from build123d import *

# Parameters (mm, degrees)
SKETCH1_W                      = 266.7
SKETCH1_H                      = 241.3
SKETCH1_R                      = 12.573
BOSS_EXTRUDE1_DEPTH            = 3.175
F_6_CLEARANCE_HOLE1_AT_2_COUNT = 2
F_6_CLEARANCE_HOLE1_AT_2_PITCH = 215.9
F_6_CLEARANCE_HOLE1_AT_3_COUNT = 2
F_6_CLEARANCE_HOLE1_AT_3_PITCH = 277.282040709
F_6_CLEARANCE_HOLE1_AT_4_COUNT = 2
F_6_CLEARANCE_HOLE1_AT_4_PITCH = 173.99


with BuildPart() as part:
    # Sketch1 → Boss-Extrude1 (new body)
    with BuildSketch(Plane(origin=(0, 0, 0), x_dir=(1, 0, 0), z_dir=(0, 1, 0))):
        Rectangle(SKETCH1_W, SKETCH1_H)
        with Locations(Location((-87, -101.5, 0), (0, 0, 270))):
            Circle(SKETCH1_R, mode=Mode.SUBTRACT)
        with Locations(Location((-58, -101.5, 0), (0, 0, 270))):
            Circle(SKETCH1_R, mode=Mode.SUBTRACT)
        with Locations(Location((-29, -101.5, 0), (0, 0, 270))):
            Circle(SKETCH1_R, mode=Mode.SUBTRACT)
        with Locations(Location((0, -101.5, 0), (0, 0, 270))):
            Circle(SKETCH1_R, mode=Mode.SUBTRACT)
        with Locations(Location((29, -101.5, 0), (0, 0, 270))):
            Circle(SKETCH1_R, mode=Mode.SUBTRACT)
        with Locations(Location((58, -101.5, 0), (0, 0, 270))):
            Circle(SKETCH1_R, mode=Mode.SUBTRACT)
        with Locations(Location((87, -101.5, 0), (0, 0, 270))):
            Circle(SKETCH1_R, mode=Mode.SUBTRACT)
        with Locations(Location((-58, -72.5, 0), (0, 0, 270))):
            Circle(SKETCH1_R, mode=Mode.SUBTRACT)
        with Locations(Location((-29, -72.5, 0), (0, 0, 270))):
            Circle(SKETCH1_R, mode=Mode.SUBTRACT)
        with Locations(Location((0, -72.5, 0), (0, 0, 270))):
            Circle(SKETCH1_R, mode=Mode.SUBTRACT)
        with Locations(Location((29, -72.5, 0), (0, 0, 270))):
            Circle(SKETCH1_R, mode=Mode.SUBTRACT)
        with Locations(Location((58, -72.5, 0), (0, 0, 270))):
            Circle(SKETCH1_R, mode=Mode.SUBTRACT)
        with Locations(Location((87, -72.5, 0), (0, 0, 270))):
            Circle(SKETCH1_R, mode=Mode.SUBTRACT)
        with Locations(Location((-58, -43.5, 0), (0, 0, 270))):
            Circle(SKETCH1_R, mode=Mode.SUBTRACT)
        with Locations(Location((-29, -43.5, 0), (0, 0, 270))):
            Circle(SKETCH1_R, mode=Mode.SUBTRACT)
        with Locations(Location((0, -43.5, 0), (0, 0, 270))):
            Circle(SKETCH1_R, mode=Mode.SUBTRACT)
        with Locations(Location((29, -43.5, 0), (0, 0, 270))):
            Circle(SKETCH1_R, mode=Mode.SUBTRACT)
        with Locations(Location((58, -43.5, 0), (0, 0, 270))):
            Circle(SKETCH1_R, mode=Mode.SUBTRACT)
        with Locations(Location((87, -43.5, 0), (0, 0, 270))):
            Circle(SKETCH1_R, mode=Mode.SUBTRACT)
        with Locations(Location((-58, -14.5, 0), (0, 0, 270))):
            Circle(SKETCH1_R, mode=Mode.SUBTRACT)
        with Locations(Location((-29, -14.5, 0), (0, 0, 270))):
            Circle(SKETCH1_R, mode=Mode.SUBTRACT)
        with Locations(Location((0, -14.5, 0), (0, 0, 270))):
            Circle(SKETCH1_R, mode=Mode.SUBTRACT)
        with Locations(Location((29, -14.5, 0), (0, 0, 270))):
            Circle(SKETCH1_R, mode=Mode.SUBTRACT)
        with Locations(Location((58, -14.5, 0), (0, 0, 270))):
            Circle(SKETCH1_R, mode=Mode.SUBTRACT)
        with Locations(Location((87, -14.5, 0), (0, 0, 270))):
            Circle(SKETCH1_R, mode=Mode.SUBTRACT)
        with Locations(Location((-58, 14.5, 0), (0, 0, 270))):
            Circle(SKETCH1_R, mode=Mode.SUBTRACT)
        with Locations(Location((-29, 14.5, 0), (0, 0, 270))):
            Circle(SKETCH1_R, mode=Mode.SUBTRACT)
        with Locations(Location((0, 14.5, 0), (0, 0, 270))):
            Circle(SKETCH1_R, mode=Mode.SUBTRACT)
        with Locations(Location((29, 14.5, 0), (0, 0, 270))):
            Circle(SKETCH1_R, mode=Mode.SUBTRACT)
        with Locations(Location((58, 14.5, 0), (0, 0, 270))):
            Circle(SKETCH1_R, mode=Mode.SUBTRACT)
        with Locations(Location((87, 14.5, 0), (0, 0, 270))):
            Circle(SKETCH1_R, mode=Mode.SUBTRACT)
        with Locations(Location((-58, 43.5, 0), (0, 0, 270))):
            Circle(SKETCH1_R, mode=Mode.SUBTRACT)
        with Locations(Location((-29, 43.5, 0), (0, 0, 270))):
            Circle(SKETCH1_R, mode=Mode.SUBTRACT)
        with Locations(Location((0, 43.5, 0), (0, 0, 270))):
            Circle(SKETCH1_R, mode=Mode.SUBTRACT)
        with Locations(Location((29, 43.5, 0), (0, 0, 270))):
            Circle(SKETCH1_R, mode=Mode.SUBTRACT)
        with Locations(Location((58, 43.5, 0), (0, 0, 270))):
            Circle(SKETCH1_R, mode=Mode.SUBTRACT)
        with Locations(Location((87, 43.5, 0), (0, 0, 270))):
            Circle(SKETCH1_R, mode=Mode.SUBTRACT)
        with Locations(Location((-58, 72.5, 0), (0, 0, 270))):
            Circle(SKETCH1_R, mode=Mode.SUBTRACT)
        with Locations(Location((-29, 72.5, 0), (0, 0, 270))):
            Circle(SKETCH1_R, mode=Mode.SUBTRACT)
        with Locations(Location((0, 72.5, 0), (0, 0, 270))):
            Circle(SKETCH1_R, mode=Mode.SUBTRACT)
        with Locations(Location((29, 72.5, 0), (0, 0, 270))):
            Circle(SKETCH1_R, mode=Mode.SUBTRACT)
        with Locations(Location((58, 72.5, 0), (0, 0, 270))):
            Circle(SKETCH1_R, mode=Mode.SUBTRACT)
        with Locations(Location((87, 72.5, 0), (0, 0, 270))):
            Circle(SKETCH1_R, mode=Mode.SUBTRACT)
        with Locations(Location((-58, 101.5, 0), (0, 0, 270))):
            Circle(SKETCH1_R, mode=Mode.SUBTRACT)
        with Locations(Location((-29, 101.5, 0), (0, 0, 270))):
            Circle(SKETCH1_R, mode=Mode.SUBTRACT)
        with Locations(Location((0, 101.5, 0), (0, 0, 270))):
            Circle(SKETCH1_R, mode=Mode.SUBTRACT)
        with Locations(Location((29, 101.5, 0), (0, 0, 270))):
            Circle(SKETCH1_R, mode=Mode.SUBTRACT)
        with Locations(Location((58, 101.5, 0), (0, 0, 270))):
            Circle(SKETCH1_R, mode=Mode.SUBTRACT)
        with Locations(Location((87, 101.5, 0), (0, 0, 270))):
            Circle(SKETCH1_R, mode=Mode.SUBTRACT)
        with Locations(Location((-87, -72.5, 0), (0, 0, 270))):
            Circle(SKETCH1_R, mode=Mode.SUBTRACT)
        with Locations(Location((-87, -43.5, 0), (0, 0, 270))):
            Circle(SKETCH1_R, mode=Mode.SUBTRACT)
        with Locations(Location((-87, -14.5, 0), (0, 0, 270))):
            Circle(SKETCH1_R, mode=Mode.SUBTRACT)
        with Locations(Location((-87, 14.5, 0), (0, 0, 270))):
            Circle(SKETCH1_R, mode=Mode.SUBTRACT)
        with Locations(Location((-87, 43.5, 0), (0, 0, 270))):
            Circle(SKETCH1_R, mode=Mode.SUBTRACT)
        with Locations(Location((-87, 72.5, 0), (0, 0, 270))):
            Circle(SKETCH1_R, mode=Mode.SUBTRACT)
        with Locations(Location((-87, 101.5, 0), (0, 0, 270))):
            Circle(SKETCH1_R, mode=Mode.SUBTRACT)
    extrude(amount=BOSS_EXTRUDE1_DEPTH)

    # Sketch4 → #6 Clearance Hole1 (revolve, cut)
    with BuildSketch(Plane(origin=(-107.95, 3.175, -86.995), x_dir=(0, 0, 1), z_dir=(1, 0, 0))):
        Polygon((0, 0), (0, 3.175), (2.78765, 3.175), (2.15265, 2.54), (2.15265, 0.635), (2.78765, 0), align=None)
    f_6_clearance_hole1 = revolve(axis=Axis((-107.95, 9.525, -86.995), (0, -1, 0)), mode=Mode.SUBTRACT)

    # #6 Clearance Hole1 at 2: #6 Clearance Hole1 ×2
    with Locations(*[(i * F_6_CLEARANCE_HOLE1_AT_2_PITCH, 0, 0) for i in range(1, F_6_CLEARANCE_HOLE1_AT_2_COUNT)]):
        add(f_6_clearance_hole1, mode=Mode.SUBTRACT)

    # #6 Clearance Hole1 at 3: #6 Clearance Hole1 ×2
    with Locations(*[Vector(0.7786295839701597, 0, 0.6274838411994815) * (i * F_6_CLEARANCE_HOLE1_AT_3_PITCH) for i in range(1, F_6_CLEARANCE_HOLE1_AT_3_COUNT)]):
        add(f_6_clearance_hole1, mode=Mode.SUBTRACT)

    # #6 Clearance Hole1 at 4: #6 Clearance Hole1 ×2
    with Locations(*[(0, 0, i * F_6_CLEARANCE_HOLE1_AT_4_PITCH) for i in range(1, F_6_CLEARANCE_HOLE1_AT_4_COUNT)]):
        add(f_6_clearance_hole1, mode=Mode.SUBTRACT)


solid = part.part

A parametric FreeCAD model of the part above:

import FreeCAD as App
import Part
import Sketcher
Q = App.Units.Quantity

doc = App.newDocument("Part")
body = doc.addObject("PartDesign::Body", "Body")

# Sketch on XZ plane
sketch1 = doc.addObject("Sketcher::SketchObject", "Sketch")
body.addObject(sketch1)
sketch1.AttachmentSupport = (doc.XZ_Plane, [""])
sketch1.MapMode = "FlatFace"
sketch1.addGeometry([
    Part.LineSegment(App.Vector(-133, -121, 0), App.Vector(-133, 121, 0)),  # 0
    Part.LineSegment(App.Vector(-133, 121, 0), App.Vector(133, 121, 0)),  # 1
    Part.LineSegment(App.Vector(133, 121, 0), App.Vector(133, -121, 0)),  # 2
    Part.LineSegment(App.Vector(133, -121, 0), App.Vector(-133, -121, 0)),  # 3
    Part.Circle(App.Vector(-87, 102, 0), App.Vector(0, 0, 1), 13),  # 4
    Part.Circle(App.Vector(-58, 102, 0), App.Vector(0, 0, 1), 13),  # 5
    Part.Circle(App.Vector(-87, 72, 0), App.Vector(0, 0, 1), 13),  # 6
    Part.Circle(App.Vector(-58, 72, 0), App.Vector(0, 0, 1), 13),  # 7
    Part.Circle(App.Vector(-29, 102, 0), App.Vector(0, 0, 1), 13),  # 8
    Part.Circle(App.Vector(-29, 72, 0), App.Vector(0, 0, 1), 13),  # 9
    Part.Circle(App.Vector(-87, 44, 0), App.Vector(0, 0, 1), 13),  # 10
    Part.Circle(App.Vector(-58, 44, 0), App.Vector(0, 0, 1), 13),  # 11
    Part.Circle(App.Vector(-87, 14, 0), App.Vector(0, 0, 1), 13),  # 12
    Part.Circle(App.Vector(-58, 14, 0), App.Vector(0, 0, 1), 13),  # 13
    Part.Circle(App.Vector(-29, 44, 0), App.Vector(0, 0, 1), 13),  # 14
    Part.Circle(App.Vector(-29, 14, 0), App.Vector(0, 0, 1), 13),  # 15
    Part.Circle(App.Vector(0, 102, 0), App.Vector(0, 0, 1), 13),  # 16
    Part.Circle(App.Vector(29, 102, 0), App.Vector(0, 0, 1), 13),  # 17
    Part.Circle(App.Vector(0, 72, 0), App.Vector(0, 0, 1), 13),  # 18
    Part.Circle(App.Vector(29, 72, 0), App.Vector(0, 0, 1), 13),  # 19
    Part.Circle(App.Vector(58, 102, 0), App.Vector(0, 0, 1), 13),  # 20
    Part.Circle(App.Vector(87, 102, 0), App.Vector(0, 0, 1), 13),  # 21
    Part.Circle(App.Vector(58, 72, 0), App.Vector(0, 0, 1), 13),  # 22
    Part.Circle(App.Vector(87, 72, 0), App.Vector(0, 0, 1), 13),  # 23
    Part.Circle(App.Vector(0, 44, 0), App.Vector(0, 0, 1), 13),  # 24
    Part.Circle(App.Vector(29, 44, 0), App.Vector(0, 0, 1), 13),  # 25
    Part.Circle(App.Vector(0, 14, 0), App.Vector(0, 0, 1), 13),  # 26
    Part.Circle(App.Vector(29, 14, 0), App.Vector(0, 0, 1), 13),  # 27
    Part.Circle(App.Vector(58, 44, 0), App.Vector(0, 0, 1), 13),  # 28
    Part.Circle(App.Vector(87, 44, 0), App.Vector(0, 0, 1), 13),  # 29
    Part.Circle(App.Vector(58, 14, 0), App.Vector(0, 0, 1), 13),  # 30
    Part.Circle(App.Vector(87, 14, 0), App.Vector(0, 0, 1), 13),  # 31
    Part.Circle(App.Vector(-87, -14, 0), App.Vector(0, 0, 1), 13),  # 32
    Part.Circle(App.Vector(-58, -14, 0), App.Vector(0, 0, 1), 13),  # 33
    Part.Circle(App.Vector(-87, -44, 0), App.Vector(0, 0, 1), 13),  # 34
    Part.Circle(App.Vector(-58, -44, 0), App.Vector(0, 0, 1), 13),  # 35
    Part.Circle(App.Vector(-29, -14, 0), App.Vector(0, 0, 1), 13),  # 36
    Part.Circle(App.Vector(-29, -44, 0), App.Vector(0, 0, 1), 13),  # 37
    Part.Circle(App.Vector(-87, -72, 0), App.Vector(0, 0, 1), 13),  # 38
    Part.Circle(App.Vector(-58, -72, 0), App.Vector(0, 0, 1), 13),  # 39
    Part.Circle(App.Vector(-87, -102, 0), App.Vector(0, 0, 1), 13),  # 40
    Part.Circle(App.Vector(-58, -102, 0), App.Vector(0, 0, 1), 13),  # 41
    Part.Circle(App.Vector(-29, -72, 0), App.Vector(0, 0, 1), 13),  # 42
    Part.Circle(App.Vector(-29, -102, 0), App.Vector(0, 0, 1), 13),  # 43
    Part.Circle(App.Vector(0, -14, 0), App.Vector(0, 0, 1), 13),  # 44
    Part.Circle(App.Vector(29, -14, 0), App.Vector(0, 0, 1), 13),  # 45
    Part.Circle(App.Vector(0, -44, 0), App.Vector(0, 0, 1), 13),  # 46
    Part.Circle(App.Vector(29, -44, 0), App.Vector(0, 0, 1), 13),  # 47
    Part.Circle(App.Vector(58, -14, 0), App.Vector(0, 0, 1), 13),  # 48
    Part.Circle(App.Vector(87, -14, 0), App.Vector(0, 0, 1), 13),  # 49
    Part.Circle(App.Vector(58, -44, 0), App.Vector(0, 0, 1), 13),  # 50
    Part.Circle(App.Vector(87, -44, 0), App.Vector(0, 0, 1), 13),  # 51
    Part.Circle(App.Vector(0, -72, 0), App.Vector(0, 0, 1), 13),  # 52
    Part.Circle(App.Vector(29, -72, 0), App.Vector(0, 0, 1), 13),  # 53
    Part.Circle(App.Vector(0, -102, 0), App.Vector(0, 0, 1), 13),  # 54
    Part.Circle(App.Vector(29, -102, 0), App.Vector(0, 0, 1), 13),  # 55
    Part.Circle(App.Vector(58, -72, 0), App.Vector(0, 0, 1), 13),  # 56
    Part.Circle(App.Vector(87, -72, 0), App.Vector(0, 0, 1), 13),  # 57
    Part.Circle(App.Vector(58, -102, 0), App.Vector(0, 0, 1), 13),  # 58
    Part.Circle(App.Vector(87, -102, 0), App.Vector(0, 0, 1), 13),  # 59
], False)
sketch1.addConstraint([
    Sketcher.Constraint("Coincident", 0, 2, 1, 1),
    Sketcher.Constraint("Coincident", 1, 2, 2, 1),
    Sketcher.Constraint("Coincident", 2, 2, 3, 1),
    Sketcher.Constraint("Coincident", 3, 2, 0, 1),
    Sketcher.Constraint("Vertical", 0),
    Sketcher.Constraint("Horizontal", 1),
    Sketcher.Constraint("Vertical", 2),
    Sketcher.Constraint("Horizontal", 3),
    Sketcher.Constraint("Equal", 4, 5),
    Sketcher.Constraint("Equal", 5, 6),
    Sketcher.Constraint("Equal", 6, 7),
    Sketcher.Constraint("Equal", 7, 8),
    Sketcher.Constraint("Equal", 8, 9),
    Sketcher.Constraint("Equal", 9, 10),
    Sketcher.Constraint("Equal", 10, 11),
    Sketcher.Constraint("Equal", 11, 12),
    Sketcher.Constraint("Equal", 12, 13),
    Sketcher.Constraint("Equal", 13, 14),
    Sketcher.Constraint("Equal", 14, 15),
    Sketcher.Constraint("Equal", 15, 16),
    Sketcher.Constraint("Equal", 16, 17),
    Sketcher.Constraint("Equal", 17, 18),
    Sketcher.Constraint("Equal", 18, 19),
    Sketcher.Constraint("Equal", 19, 20),
    Sketcher.Constraint("Equal", 20, 21),
    Sketcher.Constraint("Equal", 21, 22),
    Sketcher.Constraint("Equal", 22, 23),
    Sketcher.Constraint("Equal", 23, 24),
    Sketcher.Constraint("Equal", 24, 25),
    Sketcher.Constraint("Equal", 25, 26),
    Sketcher.Constraint("Equal", 26, 27),
    Sketcher.Constraint("Equal", 27, 28),
    Sketcher.Constraint("Equal", 28, 29),
    Sketcher.Constraint("Equal", 29, 30),
    Sketcher.Constraint("Equal", 30, 31),
    Sketcher.Constraint("Equal", 31, 32),
    Sketcher.Constraint("Equal", 32, 33),
    Sketcher.Constraint("Equal", 33, 34),
    Sketcher.Constraint("Equal", 34, 35),
    Sketcher.Constraint("Equal", 35, 36),
    Sketcher.Constraint("Equal", 36, 37),
    Sketcher.Constraint("Equal", 37, 38),
    Sketcher.Constraint("Equal", 38, 39),
    Sketcher.Constraint("Equal", 39, 40),
    Sketcher.Constraint("Equal", 40, 41),
    Sketcher.Constraint("Equal", 41, 42),
    Sketcher.Constraint("Equal", 42, 43),
    Sketcher.Constraint("Equal", 43, 44),
    Sketcher.Constraint("Equal", 44, 45),
    Sketcher.Constraint("Equal", 45, 46),
    Sketcher.Constraint("Equal", 46, 47),
    Sketcher.Constraint("Equal", 47, 48),
    Sketcher.Constraint("Equal", 48, 49),
    Sketcher.Constraint("Equal", 49, 50),
    Sketcher.Constraint("Equal", 50, 51),
    Sketcher.Constraint("Equal", 51, 52),
    Sketcher.Constraint("Equal", 52, 53),
    Sketcher.Constraint("Equal", 53, 54),
    Sketcher.Constraint("Equal", 54, 55),
    Sketcher.Constraint("Equal", 55, 56),
    Sketcher.Constraint("Equal", 56, 57),
    Sketcher.Constraint("Equal", 57, 58),
    Sketcher.Constraint("Equal", 58, 59),
    Sketcher.Constraint("Symmetric", 31, 3, 32, 3, -1, 1),
    Sketcher.Constraint("Symmetric", 30, 3, 33, 3, -1, 1),
    Sketcher.Constraint("Symmetric", 29, 3, 34, 3, -1, 1),
    Sketcher.Constraint("Symmetric", 28, 3, 35, 3, -1, 1),
    Sketcher.Constraint("Symmetric", 27, 3, 36, 3, -1, 1),
    Sketcher.Constraint("Symmetric", 25, 3, 37, 3, -1, 1),
    Sketcher.Constraint("Symmetric", 23, 3, 38, 3, -1, 1),
    Sketcher.Constraint("Symmetric", 22, 3, 39, 3, -1, 1),
    Sketcher.Constraint("Symmetric", 21, 3, 40, 3, -1, 1),
    Sketcher.Constraint("Symmetric", 20, 3, 41, 3, -1, 1),
    Sketcher.Constraint("Symmetric", 19, 3, 42, 3, -1, 1),
    Sketcher.Constraint("Symmetric", 17, 3, 43, 3, -1, 1),
    Sketcher.Constraint("Symmetric", 26, 3, 44, 3, -1, 1),
    Sketcher.Constraint("Symmetric", 15, 3, 45, 3, -1, 1),
    Sketcher.Constraint("Symmetric", 24, 3, 46, 3, -1, 1),
    Sketcher.Constraint("Symmetric", 14, 3, 47, 3, -1, 1),
    Sketcher.Constraint("Symmetric", 13, 3, 48, 3, -1, 1),
    Sketcher.Constraint("Symmetric", 12, 3, 49, 3, -1, 1),
    Sketcher.Constraint("Symmetric", 11, 3, 50, 3, -1, 1),
    Sketcher.Constraint("Symmetric", 10, 3, 51, 3, -1, 1),
    Sketcher.Constraint("Symmetric", 18, 3, 52, 3, -1, 1),
    Sketcher.Constraint("Symmetric", 9, 3, 53, 3, -1, 1),
    Sketcher.Constraint("Symmetric", 16, 3, 54, 3, -1, 1),
    Sketcher.Constraint("Symmetric", 8, 3, 55, 3, -1, 1),
    Sketcher.Constraint("Symmetric", 7, 3, 56, 3, -1, 1),
    Sketcher.Constraint("Symmetric", 6, 3, 57, 3, -1, 1),
    Sketcher.Constraint("Symmetric", 5, 3, 58, 3, -1, 1),
    Sketcher.Constraint("Symmetric", 4, 3, 59, 3, -1, 1),
    Sketcher.Constraint("Symmetric", 0, 2, 2, 2, -1, 1),
    Sketcher.Constraint("Symmetric", 8, 3, 17, 3, -2),
    Sketcher.Constraint("Symmetric", 9, 3, 19, 3, -2),
    Sketcher.Constraint("Symmetric", 5, 3, 20, 3, -2),
    Sketcher.Constraint("Symmetric", 4, 3, 21, 3, -2),
    Sketcher.Constraint("Symmetric", 7, 3, 22, 3, -2),
    Sketcher.Constraint("Symmetric", 6, 3, 23, 3, -2),
    Sketcher.Constraint("Symmetric", 14, 3, 25, 3, -2),
    Sketcher.Constraint("Symmetric", 15, 3, 27, 3, -2),
    Sketcher.Constraint("Symmetric", 11, 3, 28, 3, -2),
    Sketcher.Constraint("Symmetric", 10, 3, 29, 3, -2),
    Sketcher.Constraint("Symmetric", 13, 3, 30, 3, -2),
    Sketcher.Constraint("Symmetric", 12, 3, 31, 3, -2),
    Sketcher.Constraint("PointOnObject", 16, 3, -2),
    Sketcher.Constraint("PointOnObject", 18, 3, -2),
    Sketcher.Constraint("PointOnObject", 24, 3, -2),
    Sketcher.Constraint("PointOnObject", 26, 3, -2),
    Sketcher.Constraint("Horizontal", 4, 3, 5, 3),
    Sketcher.Constraint("Horizontal", 6, 3, 7, 3),
    Sketcher.Constraint("Horizontal", 5, 3, 8, 3),
    Sketcher.Constraint("Horizontal", 7, 3, 9, 3),
    Sketcher.Constraint("Horizontal", 10, 3, 11, 3),
    Sketcher.Constraint("Horizontal", 12, 3, 13, 3),
    Sketcher.Constraint("Horizontal", 11, 3, 14, 3),
    Sketcher.Constraint("Horizontal", 13, 3, 15, 3),
    Sketcher.Constraint("Horizontal", 8, 3, 16, 3),
    Sketcher.Constraint("Horizontal", 9, 3, 18, 3),
    Sketcher.Constraint("Horizontal", 14, 3, 24, 3),
    Sketcher.Constraint("Horizontal", 15, 3, 26, 3),
    Sketcher.Constraint("Vertical", 4, 3, 6, 3),
    Sketcher.Constraint("Vertical", 5, 3, 7, 3),
    Sketcher.Constraint("Vertical", 8, 3, 9, 3),
    Sketcher.Constraint("Vertical", 6, 3, 10, 3),
    Sketcher.Constraint("Vertical", 7, 3, 11, 3),
    Sketcher.Constraint("Vertical", 10, 3, 12, 3),
    Sketcher.Constraint("Vertical", 11, 3, 13, 3),
    Sketcher.Constraint("Vertical", 9, 3, 14, 3),
    Sketcher.Constraint("Vertical", 14, 3, 15, 3),
    Sketcher.Constraint("Diameter", 4, Q("0.99 in")),
    Sketcher.Constraint("DistanceX", 1, 1, 1, 2, Q("10.5 in")),
    Sketcher.Constraint("DistanceY", 0, 1, 0, 2, Q("9.5 in")),
    Sketcher.Constraint("DistanceX", 4, 3, -1, 1, 87.0),
    Sketcher.Constraint("DistanceY", -1, 1, 4, 3, 101.5),
    Sketcher.Constraint("DistanceX", 5, 3, -1, 1, 58.0),
    Sketcher.Constraint("DistanceY", -1, 1, 6, 3, 72.5),
    Sketcher.Constraint("DistanceX", 8, 3, -1, 1, 29.0),
    Sketcher.Constraint("DistanceY", -1, 1, 10, 3, 43.5),
    Sketcher.Constraint("DistanceY", -1, 1, 12, 3, 14.5),
])
pad1 = doc.addObject("PartDesign::Pad", "Pad")
body.addObject(pad1)
pad1.Profile = sketch1
pad1.Length = Q("0.125 in")
pad1.Reversed = True

# Sketch on YZ plane
sketch2 = doc.addObject("Sketcher::SketchObject", "Sketch001")
body.addObject(sketch2)
sketch2.AttachmentSupport = (doc.YZ_Plane, [""])
sketch2.MapMode = "FlatFace"
sketch2.AttachmentOffset = App.Placement(App.Vector(0, 0, -4.25 * 25.4), App.Rotation())
sketch2.addGeometry([
    Part.LineSegment(App.Vector(0, -87, 0), App.Vector(3.2, -87, 0)),  # 0
    Part.LineSegment(App.Vector(3.2, -87, 0), App.Vector(3.2, -84.2, 0)),  # 1
    Part.LineSegment(App.Vector(3.2, -84.2, 0), App.Vector(2.5, -84.8, 0)),  # 2
    Part.LineSegment(App.Vector(2.5, -84.8, 0), App.Vector(0.6, -84.8, 0)),  # 3
    Part.LineSegment(App.Vector(0.6, -84.8, 0), App.Vector(0, -84.2, 0)),  # 4
    Part.LineSegment(App.Vector(0, -84.2, 0), App.Vector(0, -87, 0)),  # 5
], False)
sketch2.addGeometry(Part.LineSegment(App.Vector(3.2, -87, 0), App.Vector(0, -87, 0)), True)  # axis
sketch2.addConstraint([
    Sketcher.Constraint("Coincident", 0, 2, 1, 1),
    Sketcher.Constraint("Coincident", 1, 2, 2, 1),
    Sketcher.Constraint("Coincident", 2, 2, 3, 1),
    Sketcher.Constraint("Coincident", 3, 2, 4, 1),
    Sketcher.Constraint("Coincident", 4, 2, 5, 1),
    Sketcher.Constraint("Coincident", 5, 2, 0, 1),
    Sketcher.Constraint("Horizontal", 0),
    Sketcher.Constraint("Vertical", 1),
    Sketcher.Constraint("Horizontal", 3),
    Sketcher.Constraint("Vertical", 5),
    Sketcher.Constraint("Horizontal", 6),
    Sketcher.Constraint("Coincident", 6, 1, 0, 2),
    Sketcher.Constraint("PointOnObject", 4, 2, -2),
    Sketcher.Constraint("PointOnObject", 6, 2, -2),
    Sketcher.Constraint("Perpendicular", 2, 4),
    Sketcher.Constraint("Horizontal", 1, 2, 4, 2),
    Sketcher.Constraint("Equal", 2, 4),
    Sketcher.Constraint("DistanceX", -1, 1, 2, 2, Q("0.1 in")),
    Sketcher.Constraint("DistanceX", 0, 1, 0, 2, Q("0.125 in")),
    Sketcher.Constraint("DistanceY", 0, 2, -1, 1, Q("3.425 in")),
    Sketcher.Constraint("DistanceY", 1, 1, 1, 2, 2.78765),
])
groove = doc.addObject("PartDesign::Groove", "Groove")
body.addObject(groove)
groove.Profile = sketch2
groove.ReferenceAxis = (sketch2, ["Axis0"])
groove.Angle = 360
doc.recompute()

linearpattern = doc.addObject("PartDesign::LinearPattern", "LinearPattern")
body.addObject(linearpattern)
linearpattern.Originals = [groove]
linearpattern.Direction = (doc.X_Axis, [""])
linearpattern.Mode = "offset"
linearpattern.Offset = Q("8.5 in")
linearpattern.Occurrences = 2
body.Tip = linearpattern
doc.recompute()

datumline = doc.addObject("PartDesign::Line", "DatumLine")
body.addObject(datumline)
datumline.Placement = App.Placement(App.Vector(0, 0, 0), App.Rotation(App.Vector(0, 0, 1), App.Vector(0.778629584, 0, 0.627483841)))
linearpattern2 = doc.addObject("PartDesign::LinearPattern", "LinearPattern001")
body.addObject(linearpattern2)
linearpattern2.Originals = [groove]
linearpattern2.Direction = (datumline, [""])
linearpattern2.Mode = "offset"
linearpattern2.Offset = 277.282041
linearpattern2.Occurrences = 2
body.Tip = linearpattern2
doc.recompute()

linearpattern3 = doc.addObject("PartDesign::LinearPattern", "LinearPattern002")
body.addObject(linearpattern3)
linearpattern3.Originals = [groove]
linearpattern3.Direction = (doc.Z_Axis, [""])
linearpattern3.Mode = "offset"
linearpattern3.Offset = Q("6.85 in")
linearpattern3.Occurrences = 2
body.Tip = linearpattern3

doc.recompute()
